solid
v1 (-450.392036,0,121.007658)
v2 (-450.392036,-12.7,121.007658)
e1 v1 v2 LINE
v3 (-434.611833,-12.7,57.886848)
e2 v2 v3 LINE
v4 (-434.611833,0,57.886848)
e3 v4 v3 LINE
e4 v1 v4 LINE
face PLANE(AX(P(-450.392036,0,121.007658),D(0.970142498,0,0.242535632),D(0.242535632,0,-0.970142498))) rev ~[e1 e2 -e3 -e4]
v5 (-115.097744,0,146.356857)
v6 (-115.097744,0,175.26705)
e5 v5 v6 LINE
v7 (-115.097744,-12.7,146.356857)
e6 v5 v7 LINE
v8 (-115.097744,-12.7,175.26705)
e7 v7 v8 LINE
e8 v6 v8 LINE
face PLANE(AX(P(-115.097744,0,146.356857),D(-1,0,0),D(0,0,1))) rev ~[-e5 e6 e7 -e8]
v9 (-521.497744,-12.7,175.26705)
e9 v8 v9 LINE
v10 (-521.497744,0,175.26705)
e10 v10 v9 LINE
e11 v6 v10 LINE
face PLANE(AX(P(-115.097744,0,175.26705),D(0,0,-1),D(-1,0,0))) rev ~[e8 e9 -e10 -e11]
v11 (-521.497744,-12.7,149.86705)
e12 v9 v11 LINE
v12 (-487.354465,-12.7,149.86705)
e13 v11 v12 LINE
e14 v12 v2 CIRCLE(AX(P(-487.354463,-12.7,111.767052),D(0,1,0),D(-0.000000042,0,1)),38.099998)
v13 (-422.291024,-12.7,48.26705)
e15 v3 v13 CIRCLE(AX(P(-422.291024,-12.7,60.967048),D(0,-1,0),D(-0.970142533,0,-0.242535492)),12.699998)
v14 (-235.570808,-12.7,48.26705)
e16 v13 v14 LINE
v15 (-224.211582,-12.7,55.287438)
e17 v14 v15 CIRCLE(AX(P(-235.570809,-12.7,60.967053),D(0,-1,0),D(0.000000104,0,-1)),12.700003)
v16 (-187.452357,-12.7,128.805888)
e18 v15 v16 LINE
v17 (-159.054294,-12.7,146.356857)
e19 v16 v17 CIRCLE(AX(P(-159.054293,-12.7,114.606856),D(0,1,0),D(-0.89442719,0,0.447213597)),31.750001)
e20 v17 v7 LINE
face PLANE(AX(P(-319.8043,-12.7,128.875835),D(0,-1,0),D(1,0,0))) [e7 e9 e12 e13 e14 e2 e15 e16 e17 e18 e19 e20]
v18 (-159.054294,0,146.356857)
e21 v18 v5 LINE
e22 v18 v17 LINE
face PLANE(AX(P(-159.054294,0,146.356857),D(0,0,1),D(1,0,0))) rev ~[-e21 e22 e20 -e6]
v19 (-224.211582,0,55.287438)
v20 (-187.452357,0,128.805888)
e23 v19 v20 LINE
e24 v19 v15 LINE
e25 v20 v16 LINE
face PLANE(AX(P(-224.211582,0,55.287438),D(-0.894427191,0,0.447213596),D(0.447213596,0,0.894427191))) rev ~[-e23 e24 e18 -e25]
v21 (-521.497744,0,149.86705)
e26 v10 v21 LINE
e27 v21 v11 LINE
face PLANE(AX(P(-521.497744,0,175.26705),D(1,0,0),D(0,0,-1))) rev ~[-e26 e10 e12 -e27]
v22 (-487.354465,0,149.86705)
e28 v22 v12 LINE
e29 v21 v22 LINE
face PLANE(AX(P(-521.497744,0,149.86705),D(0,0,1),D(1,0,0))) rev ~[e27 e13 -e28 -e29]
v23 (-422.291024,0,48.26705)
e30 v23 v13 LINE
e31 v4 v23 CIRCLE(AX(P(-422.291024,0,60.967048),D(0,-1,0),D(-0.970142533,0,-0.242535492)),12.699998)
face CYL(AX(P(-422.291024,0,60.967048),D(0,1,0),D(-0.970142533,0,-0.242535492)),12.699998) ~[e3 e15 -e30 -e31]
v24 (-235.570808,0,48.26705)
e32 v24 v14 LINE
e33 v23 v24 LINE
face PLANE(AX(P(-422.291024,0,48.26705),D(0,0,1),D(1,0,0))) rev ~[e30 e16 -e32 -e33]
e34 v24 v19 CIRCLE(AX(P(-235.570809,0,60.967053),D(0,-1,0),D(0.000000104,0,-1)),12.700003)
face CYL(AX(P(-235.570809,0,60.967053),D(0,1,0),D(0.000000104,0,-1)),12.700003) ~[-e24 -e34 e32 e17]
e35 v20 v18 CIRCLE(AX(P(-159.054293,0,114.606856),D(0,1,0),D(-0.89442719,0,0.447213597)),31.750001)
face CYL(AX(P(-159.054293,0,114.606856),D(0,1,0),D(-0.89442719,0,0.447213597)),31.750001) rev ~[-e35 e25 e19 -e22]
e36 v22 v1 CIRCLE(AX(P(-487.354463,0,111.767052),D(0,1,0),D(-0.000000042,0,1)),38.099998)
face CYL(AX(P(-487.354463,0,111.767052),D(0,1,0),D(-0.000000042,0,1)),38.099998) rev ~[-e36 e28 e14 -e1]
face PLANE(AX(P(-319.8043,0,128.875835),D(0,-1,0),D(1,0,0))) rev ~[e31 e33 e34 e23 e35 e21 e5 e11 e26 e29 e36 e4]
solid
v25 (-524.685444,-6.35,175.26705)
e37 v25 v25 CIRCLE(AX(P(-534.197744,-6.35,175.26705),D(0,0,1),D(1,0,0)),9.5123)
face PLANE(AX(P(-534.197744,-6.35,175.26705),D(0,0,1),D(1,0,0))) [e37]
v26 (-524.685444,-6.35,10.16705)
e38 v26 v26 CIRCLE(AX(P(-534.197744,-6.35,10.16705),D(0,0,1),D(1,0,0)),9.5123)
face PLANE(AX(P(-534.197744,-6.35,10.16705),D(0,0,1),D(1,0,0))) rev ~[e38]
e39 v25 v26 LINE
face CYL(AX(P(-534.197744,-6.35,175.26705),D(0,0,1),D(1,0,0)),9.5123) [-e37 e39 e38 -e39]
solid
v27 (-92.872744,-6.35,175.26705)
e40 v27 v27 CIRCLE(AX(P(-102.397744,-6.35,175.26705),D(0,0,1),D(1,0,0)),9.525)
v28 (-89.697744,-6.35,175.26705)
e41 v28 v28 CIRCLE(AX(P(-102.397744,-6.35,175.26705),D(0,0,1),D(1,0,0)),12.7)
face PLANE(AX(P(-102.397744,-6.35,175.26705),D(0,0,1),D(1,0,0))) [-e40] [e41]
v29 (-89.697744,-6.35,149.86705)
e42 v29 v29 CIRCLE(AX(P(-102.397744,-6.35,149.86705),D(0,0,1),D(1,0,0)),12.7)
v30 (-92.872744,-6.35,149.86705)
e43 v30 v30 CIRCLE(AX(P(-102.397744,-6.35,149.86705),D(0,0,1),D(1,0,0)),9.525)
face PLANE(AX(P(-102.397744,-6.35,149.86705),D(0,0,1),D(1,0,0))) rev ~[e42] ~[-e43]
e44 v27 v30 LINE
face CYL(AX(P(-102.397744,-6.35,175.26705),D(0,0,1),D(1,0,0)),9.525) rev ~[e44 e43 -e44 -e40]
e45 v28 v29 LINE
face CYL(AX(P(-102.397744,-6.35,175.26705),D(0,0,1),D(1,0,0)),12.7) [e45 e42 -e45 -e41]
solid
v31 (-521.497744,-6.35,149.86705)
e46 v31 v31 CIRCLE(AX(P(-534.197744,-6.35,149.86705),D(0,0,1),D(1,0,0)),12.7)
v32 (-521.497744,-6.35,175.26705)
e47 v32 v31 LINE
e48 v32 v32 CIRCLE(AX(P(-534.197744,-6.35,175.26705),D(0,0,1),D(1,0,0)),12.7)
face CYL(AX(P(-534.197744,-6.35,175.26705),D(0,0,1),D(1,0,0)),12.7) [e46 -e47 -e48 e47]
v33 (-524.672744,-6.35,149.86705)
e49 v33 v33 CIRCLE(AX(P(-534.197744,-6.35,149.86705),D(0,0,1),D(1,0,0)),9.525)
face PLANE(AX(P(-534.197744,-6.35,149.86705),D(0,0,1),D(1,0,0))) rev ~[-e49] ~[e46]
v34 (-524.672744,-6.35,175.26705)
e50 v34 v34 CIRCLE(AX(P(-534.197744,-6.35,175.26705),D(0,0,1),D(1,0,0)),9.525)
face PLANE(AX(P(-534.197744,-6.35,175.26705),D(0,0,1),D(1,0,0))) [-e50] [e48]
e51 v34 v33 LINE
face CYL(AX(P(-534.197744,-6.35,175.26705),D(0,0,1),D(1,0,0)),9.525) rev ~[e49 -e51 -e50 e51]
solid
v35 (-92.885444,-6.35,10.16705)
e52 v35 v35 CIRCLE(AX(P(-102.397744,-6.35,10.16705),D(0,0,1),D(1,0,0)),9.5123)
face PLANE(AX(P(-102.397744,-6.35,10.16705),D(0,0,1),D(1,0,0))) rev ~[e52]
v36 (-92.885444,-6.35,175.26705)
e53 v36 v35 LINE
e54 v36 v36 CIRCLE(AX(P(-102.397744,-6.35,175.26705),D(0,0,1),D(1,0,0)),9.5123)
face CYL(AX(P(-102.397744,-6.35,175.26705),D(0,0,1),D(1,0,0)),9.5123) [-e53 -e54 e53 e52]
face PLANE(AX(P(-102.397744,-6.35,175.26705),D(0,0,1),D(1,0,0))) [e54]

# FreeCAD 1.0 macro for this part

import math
import FreeCAD as App
import Part
import Sketcher

V = App.Vector
Q = App.Units.Quantity

doc = App.newDocument("Part")
body = doc.addObject("PartDesign::Body", "Body")

# Sketch on XZ plane
sketch1 = body.newObject("Sketcher::SketchObject", "Sketch")
sketch1.AttachmentSupport = (doc.getObject("XZ_Plane"), [""])
sketch1.MapMode = "FlatFace"
sketch1.addGeometry([
    Part.LineSegment(V(-521, 150, 0), V(-487, 150, 0)),  # 0
    Part.ArcOfCircle(Part.Circle(V(-487, 112, 0), V(0, 0, 1), 38), math.radians(14), math.radians(90)),  # 1
    Part.LineSegment(V(-450, 121, 0), V(-435, 58, 0)),  # 2
    Part.ArcOfCircle(Part.Circle(V(-422, 61, 0), V(0, 0, 1), 13), math.radians(-166), math.radians(-90)),  # 3
    Part.LineSegment(V(-422, 48, 0), V(-236, 48, 0)),  # 4
    Part.ArcOfCircle(Part.Circle(V(-236, 61, 0), V(0, 0, 1), 13), math.radians(-90), math.radians(-27)),  # 5
    Part.LineSegment(V(-224, 55, 0), V(-187, 129, 0)),  # 6
    Part.ArcOfCircle(Part.Circle(V(-159, 115, 0), V(0, 0, 1), 32), math.radians(90), math.radians(153)),  # 7
    Part.LineSegment(V(-159, 146, 0), V(-115, 146, 0)),  # 8
    Part.LineSegment(V(-115, 146, 0), V(-115, 175, 0)),  # 9
    Part.LineSegment(V(-115, 175, 0), V(-521, 175, 0)),  # 10
    Part.LineSegment(V(-521, 175, 0), V(-521, 150, 0)),  # 11
], False)
sketch1.addConstraint([
    Sketcher.Constraint("Tangent", 0, 2, 1, 2),
    Sketcher.Constraint("Tangent", 1, 1, 2, 1),
    Sketcher.Constraint("Tangent", 2, 2, 3, 1),
    Sketcher.Constraint("Tangent", 3, 2, 4, 1),
    Sketcher.Constraint("Tangent", 4, 2, 5, 1),
    Sketcher.Constraint("Tangent", 5, 2, 6, 1),
    Sketcher.Constraint("Tangent", 6, 2, 7, 2),
    Sketcher.Constraint("Tangent", 7, 1, 8, 1),
    Sketcher.Constraint("Coincident", 8, 2, 9, 1),
    Sketcher.Constraint("Coincident", 9, 2, 10, 1),
    Sketcher.Constraint("Coincident", 10, 2, 11, 1),
    Sketcher.Constraint("Coincident", 11, 2, 0, 1),
    Sketcher.Constraint("Horizontal", 0),
    Sketcher.Constraint("Horizontal", 4),
    Sketcher.Constraint("Horizontal", 8),
    Sketcher.Constraint("Vertical", 9),
    Sketcher.Constraint("Horizontal", 10),
    Sketcher.Constraint("Vertical", 11),
    Sketcher.Constraint("Radius", 1, Q("1.4999999 in")),
    Sketcher.Constraint("Radius", 3, Q("0.4999999 in")),
    Sketcher.Constraint("Radius", 5, Q("0.5000001 in")),
    Sketcher.Constraint("DistanceX", 10, 2, 10, 1, Q("16 in")),
    Sketcher.Constraint("DistanceY", 11, 2, 11, 1, Q("1 in")),
    Sketcher.Constraint("Radius", 7, Q("1.2500001 in")),
    Sketcher.Constraint("DistanceY", 3, 3, 1, 3, Q("2.0000002 in")),
    Sketcher.Constraint("DistanceY", 7, 3, 1, 1, Q("0.2520001 in")),
    Sketcher.Constraint("DistanceX", 0, 1, 0, 2, Q("34.143279 mm")),
    Sketcher.Constraint("DistanceX", 8, 1, 8, 2, Q("43.95655 mm")),
    Sketcher.Constraint("DistanceY", 2, 2, 3, 3, Q("3.0802 mm")),
    Sketcher.Constraint("DistanceX", 4, 1, 4, 2, Q("186.720216 mm")),
    Sketcher.Constraint("DistanceY", -1, 1, 3, 3, Q("60.967048 mm")),
    Sketcher.Constraint("DistanceX", 5, 3, -1, 1, Q("235.570809 mm")),
])
pad1 = body.newObject("PartDesign::Pad", "Pad")
pad1.Profile = sketch1
pad1.Length = Q("0.5 in")
body2 = doc.addObject("PartDesign::Body", "Body001")
body2.AllowCompound = True

# Sketch on XY plane
sketch2 = body2.newObject("Sketcher::SketchObject", "Sketch001")
sketch2.AttachmentSupport = (doc.getObject("XY_Plane001"), [""])
sketch2.MapMode = "FlatFace"
sketch2.AttachmentOffset = App.Placement(V(0, 0, 175.26705), App.Rotation())
sketch2.addGeometry([
    Part.Circle(V(-102, -6, 0), V(0, 0, 1), 13),
    Part.Circle(V(-102, -6, 0), V(0, 0, 1), 10),
    Part.Circle(V(-534, -6, 0), V(0, 0, 1), 13),
    Part.Circle(V(-534, -6, 0), V(0, 0, 1), 10),
], False)
sketch2.addConstraint([
    Sketcher.Constraint("Coincident", 1, 3, 0, 3),
    Sketcher.Constraint("Coincident", 3, 3, 2, 3),
    Sketcher.Constraint("Equal", 0, 2),
    Sketcher.Constraint("Equal", 1, 3),
    Sketcher.Constraint("Horizontal", 1, 3, 2, 3),
    Sketcher.Constraint("Diameter", 0, Q("1 in")),
    Sketcher.Constraint("Diameter", 1, Q("0.75 in")),
    Sketcher.Constraint("DistanceX", 2, 3, 0, 3, Q("17 in")),
    Sketcher.Constraint("DistanceY", 0, 3, -1, 1, Q("0.25 in")),
    Sketcher.Constraint("DistanceX", 0, 3, -1, 1, Q("102.397744 mm")),
])
pad2 = body2.newObject("PartDesign::Pad", "Pad001")
pad2.Profile = sketch2
pad2.Length = Q("1 in")
pad2.Reversed = True
body3 = doc.addObject("PartDesign::Body", "Body002")
body3.AllowCompound = True

# Sketch on XY plane
sketch3 = body3.newObject("Sketcher::SketchObject", "Sketch002")
sketch3.AttachmentSupport = (doc.getObject("XY_Plane002"), [""])
sketch3.MapMode = "FlatFace"
sketch3.AttachmentOffset = App.Placement(V(0, 0, 175.26705), App.Rotation())
sketch3.addGeometry([
    Part.Circle(V(-102, -6, 0), V(0, 0, 1), 10),
    Part.Circle(V(-534, -6, 0), V(0, 0, 1), 10),
], False)
sketch3.addConstraint([
    Sketcher.Constraint("Equal", 0, 1),
    Sketcher.Constraint("Horizontal", 0, 3, 1, 3),
    Sketcher.Constraint("Diameter", 0, Q("0.749 in")),
    Sketcher.Constraint("DistanceX", 1, 3, 0, 3, Q("17 in")),
    Sketcher.Constraint("DistanceY", 0, 3, -1, 1, Q("0.25 in")),
    Sketcher.Constraint("DistanceX", 0, 3, -1, 1, Q("102.397744 mm")),
])
pad3 = body3.newObject("PartDesign::Pad", "Pad002")
pad3.Profile = sketch3
pad3.Length = Q("6.5 in")
pad3.Reversed = True

doc.recompute()
